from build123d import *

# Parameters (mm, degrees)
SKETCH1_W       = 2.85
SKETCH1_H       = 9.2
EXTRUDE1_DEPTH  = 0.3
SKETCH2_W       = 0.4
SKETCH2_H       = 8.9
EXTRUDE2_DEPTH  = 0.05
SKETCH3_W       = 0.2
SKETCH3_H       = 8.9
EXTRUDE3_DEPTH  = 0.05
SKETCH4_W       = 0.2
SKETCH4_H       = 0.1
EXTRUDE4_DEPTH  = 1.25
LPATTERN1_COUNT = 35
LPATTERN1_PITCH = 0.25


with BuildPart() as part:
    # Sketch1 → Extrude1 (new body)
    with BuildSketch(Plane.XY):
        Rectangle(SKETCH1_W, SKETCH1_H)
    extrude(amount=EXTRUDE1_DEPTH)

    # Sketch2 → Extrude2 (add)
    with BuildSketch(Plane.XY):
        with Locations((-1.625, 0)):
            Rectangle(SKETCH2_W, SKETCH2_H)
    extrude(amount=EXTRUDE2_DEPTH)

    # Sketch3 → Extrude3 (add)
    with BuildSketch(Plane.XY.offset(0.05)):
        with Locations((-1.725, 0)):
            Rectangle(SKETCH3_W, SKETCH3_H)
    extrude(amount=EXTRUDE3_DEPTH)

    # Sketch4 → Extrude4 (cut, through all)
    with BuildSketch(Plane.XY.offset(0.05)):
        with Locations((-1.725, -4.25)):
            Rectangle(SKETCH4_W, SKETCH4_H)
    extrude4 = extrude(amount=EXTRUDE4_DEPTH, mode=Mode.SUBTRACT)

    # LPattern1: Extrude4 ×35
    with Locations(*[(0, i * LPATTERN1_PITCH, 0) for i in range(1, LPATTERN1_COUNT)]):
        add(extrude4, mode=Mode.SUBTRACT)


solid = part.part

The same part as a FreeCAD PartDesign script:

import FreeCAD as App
import Part
import Sketcher

V = App.Vector
Q = App.Units.Quantity

doc = App.newDocument("Part")
body = doc.addObject("PartDesign::Body", "Body")

# Sketch on XY plane
sketch1 = body.newObject("Sketcher::SketchObject", "Sketch")
sketch1.AttachmentSupport = (doc.getObject("XY_Plane"), [""])
sketch1.MapMode = "FlatFace"
sketch1.addGeometry([
    Part.LineSegment(V(-1.4, 4.6, 0), V(-1.4, -4.6, 0)),
    Part.LineSegment(V(-1.4, -4.6, 0), V(1.4, -4.6, 0)),
    Part.LineSegment(V(1.4, -4.6, 0), V(1.4, 4.6, 0)),
    Part.LineSegment(V(1.4, 4.6, 0), V(-1.4, 4.6, 0)),
], False)
sketch1.addConstraint([
    Sketcher.Constraint("Coincident", 0, 2, 1, 1),
    Sketcher.Constraint("Coincident", 1, 2, 2, 1),
    Sketcher.Constraint("Coincident", 2, 2, 3, 1),
    Sketcher.Constraint("Coincident", 3, 2, 0, 1),
    Sketcher.Constraint("Vertical", 0),
    Sketcher.Constraint("Horizontal", 1),
    Sketcher.Constraint("Vertical", 2),
    Sketcher.Constraint("Horizontal", 3),
    Sketcher.Constraint("Symmetric", 0, 2, 2, 2, -1, 1),
    Sketcher.Constraint("DistanceY", 0, 2, 0, 1, Q("9.2 mm")),
    Sketcher.Constraint("DistanceX", 1, 1, 1, 2, Q("2.85 mm")),
])
pad1 = body.newObject("PartDesign::Pad", "Pad")
pad1.Profile = sketch1
pad1.Length = 0.3

# Sketch on XY plane
sketch2 = body.newObject("Sketcher::SketchObject", "Sketch001")
sketch2.AttachmentSupport = (doc.getObject("XY_Plane"), [""])
sketch2.MapMode = "FlatFace"
sketch2.addGeometry([
    Part.LineSegment(V(-1.82, 4.45, 0), V(-1.82, -4.45, 0)),
    Part.LineSegment(V(-1.82, -4.45, 0), V(-1.43, -4.45, 0)),
    Part.LineSegment(V(-1.43, -4.45, 0), V(-1.43, 4.45, 0)),
    Part.LineSegment(V(-1.43, 4.45, 0), V(-1.82, 4.45, 0)),
], False)
sketch2.addConstraint([
    Sketcher.Constraint("Coincident", 0, 2, 1, 1),
    Sketcher.Constraint("Coincident", 1, 2, 2, 1),
    Sketcher.Constraint("Coincident", 2, 2, 3, 1),
    Sketcher.Constraint("Coincident", 3, 2, 0, 1),
    Sketcher.Constraint("Vertical", 0),
    Sketcher.Constraint("Horizontal", 1),
    Sketcher.Constraint("Vertical", 2),
    Sketcher.Constraint("Horizontal", 3),
    Sketcher.Constraint("DistanceX", 1, 1, 1, 2, Q("0.4 mm")),
    Sketcher.Constraint("DistanceY", 0, 2, 0, 1, Q("8.9 mm")),
    Sketcher.Constraint("DistanceY", 0, 2, -1, 1, Q("4.45 mm")),
    Sketcher.Constraint("DistanceX", 0, 2, -1, 1, Q("1.825 mm")),
])
pad2 = body.newObject("PartDesign::Pad", "Pad001")
pad2.Profile = sketch2
pad2.Length = 0.05

# Sketch on XY plane
sketch3 = body.newObject("Sketcher::SketchObject", "Sketch002")
sketch3.AttachmentSupport = (doc.getObject("XY_Plane"), [""])
sketch3.MapMode = "FlatFace"
sketch3.AttachmentOffset = App.Placement(V(0, 0, 0.05), App.Rotation())
sketch3.addGeometry([
    Part.LineSegment(V(-1.82, 4.45, 0), V(-1.82, -4.45, 0)),
    Part.LineSegment(V(-1.82, -4.45, 0), V(-1.62, -4.45, 0)),
    Part.LineSegment(V(-1.62, -4.45, 0), V(-1.62, 4.45, 0)),
    Part.LineSegment(V(-1.62, 4.45, 0), V(-1.82, 4.45, 0)),
], False)
sketch3.addConstraint([
    Sketcher.Constraint("Coincident", 0, 2, 1, 1),
    Sketcher.Constraint("Coincident", 1, 2, 2, 1),
    Sketcher.Constraint("Coincident", 2, 2, 3, 1),
    Sketcher.Constraint("Coincident", 3, 2, 0, 1),
    Sketcher.Constraint("Vertical", 0),
    Sketcher.Constraint("Horizontal", 1),
    Sketcher.Constraint("Vertical", 2),
    Sketcher.Constraint("Horizontal", 3),
    Sketcher.Constraint("DistanceX", 1, 1, 1, 2, Q("0.2 mm")),
    Sketcher.Constraint("DistanceY", 0, 2, 0, 1, Q("8.9 mm")),
    Sketcher.Constraint("DistanceY", 0, 2, -1, 1, Q("4.45 mm")),
    Sketcher.Constraint("DistanceX", 0, 2, -1, 1, Q("1.825 mm")),
])
pad3 = body.newObject("PartDesign::Pad", "Pad002")
pad3.Profile = sketch3
pad3.Length = 0.05

# Sketch on XY plane
sketch4 = body.newObject("Sketcher::SketchObject", "Sketch003")
sketch4.AttachmentSupport = (doc.getObject("XY_Plane"), [""])
sketch4.MapMode = "FlatFace"
sketch4.AttachmentOffset = App.Placement(V(0, 0, 0.05), App.Rotation())
sketch4.addGeometry([
    Part.LineSegment(V(-1.82, -4.2, 0), V(-1.82, -4.3, 0)),
    Part.LineSegment(V(-1.82, -4.3, 0), V(-1.62, -4.3, 0)),
    Part.LineSegment(V(-1.62, -4.3, 0), V(-1.62, -4.2, 0)),
    Part.LineSegment(V(-1.62, -4.2, 0), V(-1.82, -4.2, 0)),
], False)
sketch4.addConstraint([
    Sketcher.Constraint("Coincident", 0, 2, 1, 1),
    Sketcher.Constraint("Coincident", 1, 2, 2, 1),
    Sketcher.Constraint("Coincident", 2, 2, 3, 1),
    Sketcher.Constraint("Coincident", 3, 2, 0, 1),
    Sketcher.Constraint("Vertical", 0),
    Sketcher.Constraint("Horizontal", 1),
    Sketcher.Constraint("Vertical", 2),
    Sketcher.Constraint("Horizontal", 3),
    Sketcher.Constraint("DistanceX", 1, 1, 1, 2, Q("0.2 mm")),
    Sketcher.Constraint("DistanceY", 0, 2, 0, 1, Q("0.1 mm")),
    Sketcher.Constraint("DistanceY", 0, 2, -1, 1, Q("4.3 mm")),
    Sketcher.Constraint("DistanceX", 0, 2, -1, 1, Q("1.825 mm")),
])
pocket1 = body.newObject("PartDesign::Pocket", "Pocket")
pocket1.Profile = sketch4
pocket1.Type = "ThroughAll"
pocket1.Reversed = True
doc.recompute()

linearpattern = body.newObject("PartDesign::LinearPattern", "LinearPattern")
linearpattern.Originals = [pocket1]
linearpattern.Direction = (doc.getObject("Y_Axis"), [""])
linearpattern.Mode = "offset"
linearpattern.Offset = 0.25
linearpattern.Occurrences = 35
body.Tip = linearpattern

doc.recompute()
